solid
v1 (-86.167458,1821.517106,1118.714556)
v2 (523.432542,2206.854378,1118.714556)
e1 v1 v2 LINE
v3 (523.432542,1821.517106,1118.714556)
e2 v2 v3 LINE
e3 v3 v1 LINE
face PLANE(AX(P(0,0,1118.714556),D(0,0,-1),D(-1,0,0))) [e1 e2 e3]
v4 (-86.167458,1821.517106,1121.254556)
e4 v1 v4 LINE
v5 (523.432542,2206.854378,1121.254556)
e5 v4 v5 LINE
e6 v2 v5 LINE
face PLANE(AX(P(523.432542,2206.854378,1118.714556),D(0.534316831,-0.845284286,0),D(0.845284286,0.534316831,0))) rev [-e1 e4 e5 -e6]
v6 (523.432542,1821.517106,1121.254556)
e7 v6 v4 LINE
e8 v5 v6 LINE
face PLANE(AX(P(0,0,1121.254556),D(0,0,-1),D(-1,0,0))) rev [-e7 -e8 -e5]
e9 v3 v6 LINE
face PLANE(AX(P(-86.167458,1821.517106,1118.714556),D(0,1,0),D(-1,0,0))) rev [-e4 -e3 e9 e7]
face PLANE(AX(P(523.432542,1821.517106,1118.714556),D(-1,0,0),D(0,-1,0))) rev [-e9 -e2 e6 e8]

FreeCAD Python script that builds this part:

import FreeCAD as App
import Part
import Sketcher
from FreeCAD import Vector
Q = App.Units.Quantity

doc = App.newDocument("Part")
body = doc.addObject("PartDesign::Body", "Body")

# Sketch on XY plane
sketch1 = doc.addObject("Sketcher::SketchObject", "Sketch")
body.addObject(sketch1)
sketch1.AttachmentSupport = (doc.XY_Plane, [""])
sketch1.MapMode = "FlatFace"
sketch1.AttachmentOffset = App.Placement(Vector(0, 0, 1121.254556), App.Rotation())
sketch1.addGeometry([
    Part.LineSegment(Vector(523, 1822, 0), Vector(-86, 1822, 0)),
    Part.LineSegment(Vector(-86, 1822, 0), Vector(523, 2207, 0)),
    Part.LineSegment(Vector(523, 2207, 0), Vector(523, 1822, 0)),
], False)
sketch1.addConstraint([
    Sketcher.Constraint("Coincident", 0, 2, 1, 1),
    Sketcher.Constraint("Coincident", 1, 2, 2, 1),
    Sketcher.Constraint("Coincident", 2, 2, 0, 1),
    Sketcher.Constraint("Horizontal", 0),
    Sketcher.Constraint("Vertical", 2),
    Sketcher.Constraint("DistanceX", 0, 2, 0, 1, Q("24 in")),
    Sketcher.Constraint("DistanceY", 2, 2, 2, 1, 385.337272),
    Sketcher.Constraint("DistanceX", 0, 2, -1, 1, 86.167458),
    Sketcher.Constraint("DistanceY", -1, 1, 0, 2, 1821.517106),
])
pad1 = doc.addObject("PartDesign::Pad", "Pad")
body.addObject(pad1)
pad1.Profile = sketch1
pad1.Length = Q("0.1 in")
pad1.Reversed = True

doc.recompute()
